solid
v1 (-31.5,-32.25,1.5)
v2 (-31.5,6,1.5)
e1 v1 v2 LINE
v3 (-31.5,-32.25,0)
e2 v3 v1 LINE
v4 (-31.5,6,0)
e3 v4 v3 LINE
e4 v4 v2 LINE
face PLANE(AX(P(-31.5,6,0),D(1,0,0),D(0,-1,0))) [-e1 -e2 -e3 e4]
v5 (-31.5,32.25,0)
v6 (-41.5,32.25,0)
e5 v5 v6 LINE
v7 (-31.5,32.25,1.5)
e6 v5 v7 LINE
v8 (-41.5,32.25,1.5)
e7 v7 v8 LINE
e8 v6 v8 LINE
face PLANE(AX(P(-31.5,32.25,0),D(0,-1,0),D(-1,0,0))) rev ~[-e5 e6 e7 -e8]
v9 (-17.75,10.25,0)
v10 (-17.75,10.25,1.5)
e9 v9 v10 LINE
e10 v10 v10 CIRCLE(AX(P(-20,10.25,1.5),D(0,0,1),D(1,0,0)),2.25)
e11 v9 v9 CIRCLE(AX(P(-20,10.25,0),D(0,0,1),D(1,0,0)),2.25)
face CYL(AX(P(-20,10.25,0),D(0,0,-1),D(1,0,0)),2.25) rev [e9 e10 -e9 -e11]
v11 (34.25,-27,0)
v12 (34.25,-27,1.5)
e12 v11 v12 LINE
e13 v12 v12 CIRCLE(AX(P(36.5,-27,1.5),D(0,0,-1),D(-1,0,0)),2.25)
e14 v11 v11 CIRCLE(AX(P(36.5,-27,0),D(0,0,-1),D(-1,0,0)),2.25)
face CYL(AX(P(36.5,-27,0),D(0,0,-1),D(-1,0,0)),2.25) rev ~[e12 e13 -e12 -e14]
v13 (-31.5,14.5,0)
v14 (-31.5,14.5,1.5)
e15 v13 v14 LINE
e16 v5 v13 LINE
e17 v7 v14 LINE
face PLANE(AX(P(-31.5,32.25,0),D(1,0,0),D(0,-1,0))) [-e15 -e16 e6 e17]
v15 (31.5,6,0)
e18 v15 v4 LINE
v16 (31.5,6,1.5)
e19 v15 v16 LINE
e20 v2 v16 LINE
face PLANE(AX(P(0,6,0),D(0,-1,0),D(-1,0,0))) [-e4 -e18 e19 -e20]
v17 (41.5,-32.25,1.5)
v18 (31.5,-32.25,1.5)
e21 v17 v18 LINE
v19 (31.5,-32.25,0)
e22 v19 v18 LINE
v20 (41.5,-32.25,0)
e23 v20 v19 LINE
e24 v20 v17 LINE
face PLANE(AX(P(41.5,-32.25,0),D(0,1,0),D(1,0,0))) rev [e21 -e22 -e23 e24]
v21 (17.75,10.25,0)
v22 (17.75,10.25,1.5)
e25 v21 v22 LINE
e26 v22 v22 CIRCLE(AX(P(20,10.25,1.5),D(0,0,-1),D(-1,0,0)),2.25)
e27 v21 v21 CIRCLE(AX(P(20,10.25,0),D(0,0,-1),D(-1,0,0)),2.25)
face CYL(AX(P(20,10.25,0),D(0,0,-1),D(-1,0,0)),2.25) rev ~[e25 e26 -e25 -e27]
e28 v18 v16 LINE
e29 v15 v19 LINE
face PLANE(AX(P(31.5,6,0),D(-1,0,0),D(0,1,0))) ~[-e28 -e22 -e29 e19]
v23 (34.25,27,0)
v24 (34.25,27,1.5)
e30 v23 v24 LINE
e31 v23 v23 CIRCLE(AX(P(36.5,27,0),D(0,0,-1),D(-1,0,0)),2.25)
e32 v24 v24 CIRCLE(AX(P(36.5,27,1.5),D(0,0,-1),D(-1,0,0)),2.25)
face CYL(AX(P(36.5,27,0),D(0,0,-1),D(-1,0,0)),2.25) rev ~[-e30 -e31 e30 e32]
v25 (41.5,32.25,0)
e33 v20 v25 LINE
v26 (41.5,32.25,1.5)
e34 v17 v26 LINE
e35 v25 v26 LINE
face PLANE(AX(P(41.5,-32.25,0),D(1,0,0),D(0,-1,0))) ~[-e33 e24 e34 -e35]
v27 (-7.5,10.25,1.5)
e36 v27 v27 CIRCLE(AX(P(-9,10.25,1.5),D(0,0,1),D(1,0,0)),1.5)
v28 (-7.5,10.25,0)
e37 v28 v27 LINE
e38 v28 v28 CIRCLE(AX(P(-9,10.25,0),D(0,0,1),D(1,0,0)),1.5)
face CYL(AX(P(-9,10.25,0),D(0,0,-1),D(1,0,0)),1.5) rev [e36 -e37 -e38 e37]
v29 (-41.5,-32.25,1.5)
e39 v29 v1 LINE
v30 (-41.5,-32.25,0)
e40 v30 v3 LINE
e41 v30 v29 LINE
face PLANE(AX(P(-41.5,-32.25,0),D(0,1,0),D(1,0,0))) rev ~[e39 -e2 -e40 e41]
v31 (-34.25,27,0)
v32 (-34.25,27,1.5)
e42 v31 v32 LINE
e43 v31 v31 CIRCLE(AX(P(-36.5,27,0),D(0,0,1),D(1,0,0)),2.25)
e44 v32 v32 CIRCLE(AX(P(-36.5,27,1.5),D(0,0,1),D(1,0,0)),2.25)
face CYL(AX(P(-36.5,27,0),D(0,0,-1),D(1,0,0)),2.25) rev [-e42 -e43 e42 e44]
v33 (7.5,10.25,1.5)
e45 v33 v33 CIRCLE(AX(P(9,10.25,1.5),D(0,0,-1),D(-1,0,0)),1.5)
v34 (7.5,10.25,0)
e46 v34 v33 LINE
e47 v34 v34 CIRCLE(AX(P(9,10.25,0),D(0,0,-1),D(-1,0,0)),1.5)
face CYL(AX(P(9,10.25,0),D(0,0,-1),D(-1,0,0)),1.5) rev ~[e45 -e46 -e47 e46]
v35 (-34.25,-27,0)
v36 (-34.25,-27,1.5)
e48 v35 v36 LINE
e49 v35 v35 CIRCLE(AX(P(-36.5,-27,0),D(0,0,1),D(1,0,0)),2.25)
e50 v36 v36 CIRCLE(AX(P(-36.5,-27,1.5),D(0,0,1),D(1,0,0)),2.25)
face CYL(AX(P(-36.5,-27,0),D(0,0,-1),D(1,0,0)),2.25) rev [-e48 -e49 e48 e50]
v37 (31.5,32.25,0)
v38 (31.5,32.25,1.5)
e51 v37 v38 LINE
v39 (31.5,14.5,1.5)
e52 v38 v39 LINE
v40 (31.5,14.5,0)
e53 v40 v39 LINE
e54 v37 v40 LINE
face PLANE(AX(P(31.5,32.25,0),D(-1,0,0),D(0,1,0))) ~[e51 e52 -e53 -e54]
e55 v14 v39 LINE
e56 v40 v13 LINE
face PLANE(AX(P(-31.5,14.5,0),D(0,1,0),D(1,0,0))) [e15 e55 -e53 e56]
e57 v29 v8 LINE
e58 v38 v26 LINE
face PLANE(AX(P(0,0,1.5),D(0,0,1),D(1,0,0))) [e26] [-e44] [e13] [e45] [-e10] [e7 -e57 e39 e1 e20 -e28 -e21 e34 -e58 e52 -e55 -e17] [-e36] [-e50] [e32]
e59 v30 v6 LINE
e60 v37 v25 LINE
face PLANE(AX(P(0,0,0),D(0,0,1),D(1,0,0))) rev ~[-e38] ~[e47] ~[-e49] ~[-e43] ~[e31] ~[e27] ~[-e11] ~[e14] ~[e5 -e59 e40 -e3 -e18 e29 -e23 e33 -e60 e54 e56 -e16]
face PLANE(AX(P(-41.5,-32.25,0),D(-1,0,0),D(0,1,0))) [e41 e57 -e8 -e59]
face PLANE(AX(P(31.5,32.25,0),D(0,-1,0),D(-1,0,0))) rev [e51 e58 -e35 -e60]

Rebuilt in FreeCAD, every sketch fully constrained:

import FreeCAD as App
import Part
import Sketcher
from FreeCAD import Vector


def add_polygon(sketch, points):
    """Adds a closed chain of lines whose ends are joined by coincident constraints."""
    first, n = sketch.GeometryCount, len(points)
    for a, b in zip(points, points[1:] + points[:1]):
        sketch.addGeometry(Part.LineSegment(App.Vector(*a, 0), App.Vector(*b, 0)), False)
    for i in range(n):
        sketch.addConstraint(Sketcher.Constraint("Coincident", first + i, 2, first + (i + 1) % n, 1))

doc = App.newDocument("Part")
body = doc.addObject("PartDesign::Body", "Body")

# Sketch on XY plane
sketch1 = doc.addObject("Sketcher::SketchObject", "Sketch")
body.addObject(sketch1)
sketch1.AttachmentSupport = (doc.XY_Plane, [""])
sketch1.MapMode = "FlatFace"
add_polygon(sketch1, [(-31.5, 14.5), (-31.5, 32.2), (-41.5, 32.2), (-41.5, -32.2), (-31.5, -32.2), (-31.5, 6), (0, 6), (0, 14.5)])  # lines 0-7
sketch1.addGeometry(Part.Circle(Vector(-36.5, -27, 0), Vector(0, 0, 1), 2.2), False)  # 8
sketch1.addGeometry(Part.Circle(Vector(-36.5, 27, 0), Vector(0, 0, 1), 2.2), False)  # 9
sketch1.addGeometry(Part.Circle(Vector(-9, 10.2, 0), Vector(0, 0, 1), 1.5), False)  # 10
sketch1.addGeometry(Part.Circle(Vector(-20, 10.2, 0), Vector(0, 0, 1), 2.2), False)  # 11
sketch1.addConstraint(Sketcher.Constraint("Vertical", 0))
sketch1.addConstraint(Sketcher.Constraint("Horizontal", 1))
sketch1.addConstraint(Sketcher.Constraint("Vertical", 2))
sketch1.addConstraint(Sketcher.Constraint("Horizontal", 3))
sketch1.addConstraint(Sketcher.Constraint("Vertical", 4))
sketch1.addConstraint(Sketcher.Constraint("Horizontal", 5))
sketch1.addConstraint(Sketcher.Constraint("Vertical", 6))
sketch1.addConstraint(Sketcher.Constraint("Horizontal", 7))
sketch1.addConstraint(Sketcher.Constraint("Equal", 8, 9))
sketch1.addConstraint(Sketcher.Constraint("Equal", 9, 11))
sketch1.addConstraint(Sketcher.Constraint("Symmetric", 8, 3, 9, 3, -1))
sketch1.addConstraint(Sketcher.Constraint("Symmetric", 0, 2, 3, 2, -1))
sketch1.addConstraint(Sketcher.Constraint("PointOnObject", 5, 2, -2))
sketch1.addConstraint(Sketcher.Constraint("Horizontal", 10, 3, 11, 3))
sketch1.addConstraint(Sketcher.Constraint("Diameter", 10, 3.0))
sketch1.addConstraint(Sketcher.Constraint("Diameter", 8, 4.5))
sketch1.addConstraint(Sketcher.Constraint("DistanceY", 6, 1, 6, 2, 8.5))
sketch1.addConstraint(Sketcher.Constraint("DistanceX", 10, 3, -1, 1, 9.0))
sketch1.addConstraint(Sketcher.Constraint("DistanceX", 11, 3, -1, 1, 20.0))
sketch1.addConstraint(Sketcher.Constraint("DistanceY", 11, 3, 0, 2, 22.0))
sketch1.addConstraint(Sketcher.Constraint("DistanceX", 1, 2, 1, 1, 10.0))
sketch1.addConstraint(Sketcher.Constraint("DistanceX", 5, 1, 5, 2, 31.5))
sketch1.addConstraint(Sketcher.Constraint("DistanceY", 2, 2, 2, 1, 64.5))
sketch1.addConstraint(Sketcher.Constraint("DistanceY", 8, 3, -1, 1, 27.0))
sketch1.addConstraint(Sketcher.Constraint("DistanceY", -1, 1, 4, 2, 6.0))
sketch1.addConstraint(Sketcher.Constraint("DistanceX", 9, 3, 0, 2, 5.0))
pad1 = doc.addObject("PartDesign::Pad", "Pad")
body.addObject(pad1)
pad1.Profile = sketch1
pad1.Length = 1.5
doc.recompute()

mirrored = doc.addObject("PartDesign::Mirrored", "Mirrored")
body.addObject(mirrored)
mirrored.Originals = [pad1]
mirrored.MirrorPlane = (doc.YZ_Plane, [""])
body.Tip = mirrored

doc.recompute()
